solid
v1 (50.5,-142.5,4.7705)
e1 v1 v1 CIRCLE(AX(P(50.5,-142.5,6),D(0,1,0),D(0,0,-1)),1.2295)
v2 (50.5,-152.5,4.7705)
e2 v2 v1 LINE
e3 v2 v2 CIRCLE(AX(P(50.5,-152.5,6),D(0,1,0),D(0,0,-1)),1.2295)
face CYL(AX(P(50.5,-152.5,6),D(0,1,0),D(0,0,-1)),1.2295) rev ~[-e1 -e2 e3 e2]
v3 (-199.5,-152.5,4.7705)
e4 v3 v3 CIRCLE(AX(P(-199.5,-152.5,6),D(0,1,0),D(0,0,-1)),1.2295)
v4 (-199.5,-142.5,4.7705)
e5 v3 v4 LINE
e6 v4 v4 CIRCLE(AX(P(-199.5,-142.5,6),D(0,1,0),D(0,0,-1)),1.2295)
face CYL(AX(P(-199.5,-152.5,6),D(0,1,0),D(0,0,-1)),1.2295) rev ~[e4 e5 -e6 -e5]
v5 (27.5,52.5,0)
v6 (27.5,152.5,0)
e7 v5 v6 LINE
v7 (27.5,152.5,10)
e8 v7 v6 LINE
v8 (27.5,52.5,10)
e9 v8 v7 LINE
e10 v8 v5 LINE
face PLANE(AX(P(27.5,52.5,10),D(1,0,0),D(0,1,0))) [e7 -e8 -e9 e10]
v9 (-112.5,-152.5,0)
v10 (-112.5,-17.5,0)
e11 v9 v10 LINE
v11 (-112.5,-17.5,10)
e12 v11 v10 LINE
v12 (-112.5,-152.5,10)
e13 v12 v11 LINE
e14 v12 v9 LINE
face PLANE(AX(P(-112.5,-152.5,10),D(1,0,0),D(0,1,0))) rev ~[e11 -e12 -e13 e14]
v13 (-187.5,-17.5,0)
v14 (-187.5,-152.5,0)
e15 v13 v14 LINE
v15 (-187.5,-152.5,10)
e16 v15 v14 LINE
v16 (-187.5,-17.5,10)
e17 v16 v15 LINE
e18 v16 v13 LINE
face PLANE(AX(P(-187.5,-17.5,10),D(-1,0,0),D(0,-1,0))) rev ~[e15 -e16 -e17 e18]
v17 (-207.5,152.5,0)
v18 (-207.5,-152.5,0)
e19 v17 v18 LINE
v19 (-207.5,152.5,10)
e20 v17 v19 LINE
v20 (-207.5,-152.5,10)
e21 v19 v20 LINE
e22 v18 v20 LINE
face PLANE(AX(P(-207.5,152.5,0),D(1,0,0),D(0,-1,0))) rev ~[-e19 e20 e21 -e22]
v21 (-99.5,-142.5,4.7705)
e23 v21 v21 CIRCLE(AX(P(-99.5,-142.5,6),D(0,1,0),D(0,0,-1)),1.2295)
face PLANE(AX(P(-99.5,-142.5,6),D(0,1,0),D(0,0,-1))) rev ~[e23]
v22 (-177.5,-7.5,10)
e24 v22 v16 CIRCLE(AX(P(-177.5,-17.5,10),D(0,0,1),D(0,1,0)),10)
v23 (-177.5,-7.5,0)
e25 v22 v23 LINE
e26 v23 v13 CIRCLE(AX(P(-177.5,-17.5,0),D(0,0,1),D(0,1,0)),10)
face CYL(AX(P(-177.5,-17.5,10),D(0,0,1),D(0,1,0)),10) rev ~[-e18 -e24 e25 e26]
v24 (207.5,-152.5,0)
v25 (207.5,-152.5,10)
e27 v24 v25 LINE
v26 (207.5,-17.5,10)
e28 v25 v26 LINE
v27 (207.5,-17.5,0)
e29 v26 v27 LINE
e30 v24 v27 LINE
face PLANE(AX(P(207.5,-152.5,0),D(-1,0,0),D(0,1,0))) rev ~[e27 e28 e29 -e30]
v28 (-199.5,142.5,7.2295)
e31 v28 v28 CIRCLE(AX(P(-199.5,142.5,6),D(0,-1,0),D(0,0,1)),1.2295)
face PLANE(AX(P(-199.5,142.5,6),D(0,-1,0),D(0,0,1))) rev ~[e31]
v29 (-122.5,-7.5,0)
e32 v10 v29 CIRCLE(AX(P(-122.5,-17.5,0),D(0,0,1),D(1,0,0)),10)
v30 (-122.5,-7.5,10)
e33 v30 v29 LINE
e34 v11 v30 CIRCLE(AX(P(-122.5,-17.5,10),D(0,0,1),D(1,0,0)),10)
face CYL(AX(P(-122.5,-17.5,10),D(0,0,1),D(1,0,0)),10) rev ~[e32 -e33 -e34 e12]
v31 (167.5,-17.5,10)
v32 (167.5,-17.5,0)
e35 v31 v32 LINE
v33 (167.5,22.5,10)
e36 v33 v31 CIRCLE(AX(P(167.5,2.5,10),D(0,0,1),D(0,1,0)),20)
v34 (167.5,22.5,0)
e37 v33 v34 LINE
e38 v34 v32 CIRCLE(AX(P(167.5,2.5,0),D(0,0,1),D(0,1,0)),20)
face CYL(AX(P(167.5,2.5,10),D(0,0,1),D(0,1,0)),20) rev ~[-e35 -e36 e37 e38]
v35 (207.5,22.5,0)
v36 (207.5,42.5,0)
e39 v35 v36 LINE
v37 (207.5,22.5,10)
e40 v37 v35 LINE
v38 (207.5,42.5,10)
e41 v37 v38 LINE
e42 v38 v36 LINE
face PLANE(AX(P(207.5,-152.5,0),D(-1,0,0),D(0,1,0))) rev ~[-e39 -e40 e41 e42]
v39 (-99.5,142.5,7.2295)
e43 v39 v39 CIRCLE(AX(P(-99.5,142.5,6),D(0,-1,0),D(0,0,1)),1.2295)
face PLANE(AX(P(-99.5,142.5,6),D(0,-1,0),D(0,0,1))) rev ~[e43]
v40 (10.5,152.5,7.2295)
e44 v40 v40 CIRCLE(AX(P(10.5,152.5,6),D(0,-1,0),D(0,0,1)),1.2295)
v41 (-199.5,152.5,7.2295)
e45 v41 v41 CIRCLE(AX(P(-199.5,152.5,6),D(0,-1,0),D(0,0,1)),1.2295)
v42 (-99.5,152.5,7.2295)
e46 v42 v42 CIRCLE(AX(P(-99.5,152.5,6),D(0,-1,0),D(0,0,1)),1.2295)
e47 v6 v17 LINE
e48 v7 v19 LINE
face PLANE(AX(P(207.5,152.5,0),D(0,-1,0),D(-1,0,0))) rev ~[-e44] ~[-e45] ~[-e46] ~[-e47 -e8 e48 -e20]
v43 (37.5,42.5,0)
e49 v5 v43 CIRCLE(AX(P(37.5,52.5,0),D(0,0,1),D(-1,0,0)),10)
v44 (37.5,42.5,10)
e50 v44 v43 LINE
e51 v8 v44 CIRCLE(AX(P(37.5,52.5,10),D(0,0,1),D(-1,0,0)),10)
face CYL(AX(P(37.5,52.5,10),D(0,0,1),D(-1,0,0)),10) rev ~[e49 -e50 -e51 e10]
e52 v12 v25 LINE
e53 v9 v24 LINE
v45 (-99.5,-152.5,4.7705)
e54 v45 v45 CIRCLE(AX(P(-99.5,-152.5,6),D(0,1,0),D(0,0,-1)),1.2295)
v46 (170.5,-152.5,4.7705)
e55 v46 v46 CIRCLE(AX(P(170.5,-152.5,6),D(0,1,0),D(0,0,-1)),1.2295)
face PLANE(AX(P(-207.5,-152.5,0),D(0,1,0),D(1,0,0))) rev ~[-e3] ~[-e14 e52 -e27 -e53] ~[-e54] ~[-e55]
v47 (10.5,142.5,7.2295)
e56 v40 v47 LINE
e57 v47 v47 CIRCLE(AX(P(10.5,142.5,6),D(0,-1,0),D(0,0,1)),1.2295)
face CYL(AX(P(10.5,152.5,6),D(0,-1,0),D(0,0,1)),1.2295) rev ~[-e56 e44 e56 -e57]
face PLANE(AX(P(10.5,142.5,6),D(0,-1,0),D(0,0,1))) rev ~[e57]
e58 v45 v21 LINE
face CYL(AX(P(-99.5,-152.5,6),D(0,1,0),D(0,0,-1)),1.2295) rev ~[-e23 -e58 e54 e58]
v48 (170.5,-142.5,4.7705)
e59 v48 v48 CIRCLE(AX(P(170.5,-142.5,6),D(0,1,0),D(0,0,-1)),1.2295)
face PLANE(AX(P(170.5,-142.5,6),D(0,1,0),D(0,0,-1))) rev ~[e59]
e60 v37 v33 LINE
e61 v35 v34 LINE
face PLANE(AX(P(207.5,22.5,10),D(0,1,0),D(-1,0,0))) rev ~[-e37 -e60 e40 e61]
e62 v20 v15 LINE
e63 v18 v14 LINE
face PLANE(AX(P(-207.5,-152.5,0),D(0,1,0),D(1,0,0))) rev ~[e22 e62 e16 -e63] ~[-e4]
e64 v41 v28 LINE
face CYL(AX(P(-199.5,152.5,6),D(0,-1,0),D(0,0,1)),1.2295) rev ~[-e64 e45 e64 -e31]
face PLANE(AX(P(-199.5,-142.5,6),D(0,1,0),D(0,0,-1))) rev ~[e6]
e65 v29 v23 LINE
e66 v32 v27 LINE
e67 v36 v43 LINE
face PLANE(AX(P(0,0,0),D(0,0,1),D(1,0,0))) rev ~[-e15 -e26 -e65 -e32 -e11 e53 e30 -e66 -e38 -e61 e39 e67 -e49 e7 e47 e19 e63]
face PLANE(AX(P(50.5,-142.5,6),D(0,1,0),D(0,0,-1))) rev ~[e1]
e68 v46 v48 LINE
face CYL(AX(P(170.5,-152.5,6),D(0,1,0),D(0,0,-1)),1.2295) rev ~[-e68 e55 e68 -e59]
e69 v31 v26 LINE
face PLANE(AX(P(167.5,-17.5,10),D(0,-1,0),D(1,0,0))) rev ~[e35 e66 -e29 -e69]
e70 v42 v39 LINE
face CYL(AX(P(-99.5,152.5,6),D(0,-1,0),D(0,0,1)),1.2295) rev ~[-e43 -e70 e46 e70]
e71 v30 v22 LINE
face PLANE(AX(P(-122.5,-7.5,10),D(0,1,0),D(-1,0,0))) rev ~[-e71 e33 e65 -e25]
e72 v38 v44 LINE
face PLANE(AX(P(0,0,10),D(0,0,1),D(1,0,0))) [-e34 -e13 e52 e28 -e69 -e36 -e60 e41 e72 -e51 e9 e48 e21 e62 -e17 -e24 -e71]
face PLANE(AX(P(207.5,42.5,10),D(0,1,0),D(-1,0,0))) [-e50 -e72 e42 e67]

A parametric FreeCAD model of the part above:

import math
import FreeCAD as App
import Part
import Sketcher
Q = App.Units.Quantity


def add_polygon(sketch, points):
    """Adds a closed chain of lines whose ends are joined by coincident constraints."""
    first, n = sketch.GeometryCount, len(points)
    for a, b in zip(points, points[1:] + points[:1]):
        sketch.addGeometry(Part.LineSegment(App.Vector(*a, 0), App.Vector(*b, 0)), False)
    for i in range(n):
        sketch.addConstraint(Sketcher.Constraint("Coincident", first + i, 2, first + (i + 1) % n, 1))

doc = App.newDocument("Part")
body = doc.addObject("PartDesign::Body", "Body")

sketch1 = body.newObject("Sketcher::SketchObject", "Sketch")
sketch1.AttachmentSupport = (doc.getObject("XY_Plane"), [""])
sketch1.MapMode = "FlatFace"
add_polygon(sketch1, [(-208, 152), (-208, -152), (208, -152), (208, 152)])
sketch1.addConstraint(Sketcher.Constraint("Vertical", 0))
sketch1.addConstraint(Sketcher.Constraint("Horizontal", 1))
sketch1.addConstraint(Sketcher.Constraint("Vertical", 2))
sketch1.addConstraint(Sketcher.Constraint("Horizontal", 3))
sketch1.addConstraint(Sketcher.Constraint("Symmetric", 0, 2, 2, 2, -1, 1))
sketch1.addConstraint(Sketcher.Constraint("DistanceX", 1, 1, 1, 2, Q("415 mm")))
sketch1.addConstraint(Sketcher.Constraint("DistanceY", 0, 2, 0, 1, Q("305 mm")))
pad1 = body.newObject("PartDesign::Pad", "Pad")
pad1.Profile = sketch1
pad1.Length = 10

sketch2 = body.newObject("Sketcher::SketchObject", "Sketch001")
sketch2.AttachmentSupport = (doc.getObject("XY_Plane"), [""])
sketch2.MapMode = "FlatFace"
sketch2.AttachmentOffset = App.Placement(App.Vector(0, 0, 10), App.Rotation())
sketch2.addGeometry(Part.LineSegment(App.Vector(-188, -18, 0), App.Vector(-188, -152, 0)), False)
sketch2.addGeometry(Part.LineSegment(App.Vector(-188, -152, 0), App.Vector(-112, -152, 0)), False)
sketch2.addGeometry(Part.LineSegment(App.Vector(-112, -152, 0), App.Vector(-112, -18, 0)), False)
sketch2.addGeometry(Part.ArcOfCircle(Part.Circle(App.Vector(-122, -18, 0), App.Vector(0, 0, 1), 10), math.radians(0), math.radians(90)), False)
sketch2.addGeometry(Part.LineSegment(App.Vector(-122, -8, 0), App.Vector(-178, -8, 0)), False)
sketch2.addGeometry(Part.ArcOfCircle(Part.Circle(App.Vector(-178, -18, 0), App.Vector(0, 0, 1), 10), math.radians(90), math.radians(180)), False)
sketch2.addGeometry(Part.LineSegment(App.Vector(208, 152, 0), App.Vector(28, 152, 0)), False)
sketch2.addGeometry(Part.LineSegment(App.Vector(28, 152, 0), App.Vector(28, 52, 0)), False)
sketch2.addGeometry(Part.ArcOfCircle(Part.Circle(App.Vector(38, 52, 0), App.Vector(0, 0, 1), 10), math.radians(180), math.radians(270)), False)
sketch2.addGeometry(Part.LineSegment(App.Vector(38, 42, 0), App.Vector(208, 42, 0)), False)
sketch2.addGeometry(Part.LineSegment(App.Vector(208, 42, 0), App.Vector(208, 152, 0)), False)
sketch2.addGeometry(Part.LineSegment(App.Vector(168, -18, 0), App.Vector(208, -18, 0)), False)
sketch2.addGeometry(Part.LineSegment(App.Vector(208, -18, 0), App.Vector(208, 22, 0)), False)
sketch2.addGeometry(Part.LineSegment(App.Vector(208, 22, 0), App.Vector(168, 22, 0)), False)
sketch2.addGeometry(Part.ArcOfCircle(Part.Circle(App.Vector(168, 2, 0), App.Vector(0, 0, 1), 20), math.radians(90), math.radians(270)), False)
sketch2.addConstraint(Sketcher.Constraint("Coincident", 0, 2, 1, 1))
sketch2.addConstraint(Sketcher.Constraint("Coincident", 1, 2, 2, 1))
sketch2.addConstraint(Sketcher.Constraint("Tangent", 2, 2, 3, 1))
sketch2.addConstraint(Sketcher.Constraint("Tangent", 3, 2, 4, 1))
sketch2.addConstraint(Sketcher.Constraint("Tangent", 4, 2, 5, 1))
sketch2.addConstraint(Sketcher.Constraint("Tangent", 5, 2, 0, 1))
sketch2.addConstraint(Sketcher.Constraint("Coincident", 6, 2, 7, 1))
sketch2.addConstraint(Sketcher.Constraint("Tangent", 7, 2, 8, 1))
sketch2.addConstraint(Sketcher.Constraint("Tangent", 8, 2, 9, 1))
sketch2.addConstraint(Sketcher.Constraint("Coincident", 9, 2, 10, 1))
sketch2.addConstraint(Sketcher.Constraint("Coincident", 10, 2, 6, 1))
sketch2.addConstraint(Sketcher.Constraint("Coincident", 11, 2, 12, 1))
sketch2.addConstraint(Sketcher.Constraint("Coincident", 12, 2, 13, 1))
sketch2.addConstraint(Sketcher.Constraint("Tangent", 13, 2, 14, 1))
sketch2.addConstraint(Sketcher.Constraint("Tangent", 14, 2, 11, 1))
sketch2.addConstraint(Sketcher.Constraint("Vertical", 0))
sketch2.addConstraint(Sketcher.Constraint("Horizontal", 1))
sketch2.addConstraint(Sketcher.Constraint("Vertical", 2))
sketch2.addConstraint(Sketcher.Constraint("Horizontal", 4))
sketch2.addConstraint(Sketcher.Constraint("Horizontal", 6))
sketch2.addConstraint(Sketcher.Constraint("Vertical", 7))
sketch2.addConstraint(Sketcher.Constraint("Horizontal", 9))
sketch2.addConstraint(Sketcher.Constraint("Vertical", 10))
sketch2.addConstraint(Sketcher.Constraint("Horizontal", 11))
sketch2.addConstraint(Sketcher.Constraint("Vertical", 12))
sketch2.addConstraint(Sketcher.Constraint("Horizontal", 13))
sketch2.addConstraint(Sketcher.Constraint("Equal", 3, 5))
sketch2.addConstraint(Sketcher.Constraint("Equal", 5, 8))
sketch2.addConstraint(Sketcher.Constraint("Horizontal", 5, 2, 11, 2))
sketch2.addConstraint(Sketcher.Constraint("Vertical", 10, 2, 11, 2))
sketch2.addConstraint(Sketcher.Constraint("Equal", 13, 12))
sketch2.addConstraint(Sketcher.Constraint("Radius", 3, Q("10 mm")))
sketch2.addConstraint(Sketcher.Constraint("Radius", 14, Q("20 mm")))
sketch2.addConstraint(Sketcher.Constraint("DistanceX", 1, 1, 1, 2, Q("75 mm")))
sketch2.addConstraint(Sketcher.Constraint("DistanceX", 6, 2, 6, 1, Q("180 mm")))
sketch2.addConstraint(Sketcher.Constraint("DistanceY", 10, 1, 10, 2, Q("110 mm")))
sketch2.addConstraint(Sketcher.Constraint("DistanceY", 1, 2, 3, 2, Q("145 mm")))
sketch2.addConstraint(Sketcher.Constraint("DistanceY", 14, 3, 8, 2, Q("40 mm")))
sketch2.addConstraint(Sketcher.Constraint("DistanceX", 3, 3, 8, 3, Q("160 mm")))
sketch2.addConstraint(Sketcher.Constraint("DistanceX", 3, 3, -1, 1, Q("122.5 mm")))
sketch2.addConstraint(Sketcher.Constraint("DistanceY", 3, 3, -1, 1, Q("17.5 mm")))
pocket1 = body.newObject("PartDesign::Pocket", "Pocket")
pocket1.Profile = sketch2
pocket1.Length = 10

sketch3 = body.newObject("Sketcher::SketchObject", "Sketch002")
sketch3.AttachmentSupport = (doc.getObject("XZ_Plane"), [""])
sketch3.MapMode = "FlatFace"
sketch3.AttachmentOffset = App.Placement(App.Vector(0, 0, 152.5), App.Rotation())
sketch3.addGeometry(Part.Circle(App.Vector(-199.5, 6, 0), App.Vector(0, 0, 1), 1.2), False)
sketch3.addGeometry(Part.Circle(App.Vector(-99.5, 6, 0), App.Vector(0, 0, 1), 1.2), False)
sketch3.addGeometry(Part.Circle(App.Vector(50.5, 6, 0), App.Vector(0, 0, 1), 1.2), False)
sketch3.addGeometry(Part.Circle(App.Vector(170.5, 6, 0), App.Vector(0, 0, 1), 1.2), False)
sketch3.addConstraint(Sketcher.Constraint("Equal", 0, 1))
sketch3.addConstraint(Sketcher.Constraint("Equal", 1, 2))
sketch3.addConstraint(Sketcher.Constraint("Equal", 2, 3))
sketch3.addConstraint(Sketcher.Constraint("Horizontal", 0, 3, 1, 3))
sketch3.addConstraint(Sketcher.Constraint("Horizontal", 1, 3, 2, 3))
sketch3.addConstraint(Sketcher.Constraint("Horizontal", 2, 3, 3, 3))
sketch3.addConstraint(Sketcher.Constraint("Diameter", 0, Q("2.459 mm")))
sketch3.addConstraint(Sketcher.Constraint("DistanceY", -1, 1, 0, 3, Q("6 mm")))
sketch3.addConstraint(Sketcher.Constraint("DistanceX", 0, 3, 1, 3, Q("100 mm")))
sketch3.addConstraint(Sketcher.Constraint("DistanceX", 1, 3, 2, 3, Q("150 mm")))
sketch3.addConstraint(Sketcher.Constraint("DistanceX", 2, 3, 3, 3, Q("120 mm")))
sketch3.addConstraint(Sketcher.Constraint("DistanceX", 0, 3, -1, 1, Q("199.5 mm")))
doc.recompute()
hole = body.newObject("PartDesign::Hole", "Hole")
hole.Profile = sketch3
hole.ThreadType = "None"
hole.Diameter = 2.459
hole.DepthType = "Dimension"
hole.Depth = 10
hole.DrillPoint = "Flat"

sketch4 = body.newObject("Sketcher::SketchObject", "Sketch003")
sketch4.AttachmentSupport = (doc.getObject("XZ_Plane"), [""])
sketch4.MapMode = "FlatFace"
sketch4.AttachmentOffset = App.Placement(App.Vector(0, 0, -152.5), App.Rotation())
sketch4.addGeometry(Part.Circle(App.Vector(10.5, 6, 0), App.Vector(0, 0, 1), 1.2), False)
sketch4.addGeometry(Part.Circle(App.Vector(-99.5, 6, 0), App.Vector(0, 0, 1), 1.2), False)
sketch4.addGeometry(Part.Circle(App.Vector(-199.5, 6, 0), App.Vector(0, 0, 1), 1.2), False)
sketch4.addConstraint(Sketcher.Constraint("Equal", 0, 1))
sketch4.addConstraint(Sketcher.Constraint("Equal", 1, 2))
sketch4.addConstraint(Sketcher.Constraint("Horizontal", 0, 3, 1, 3))
sketch4.addConstraint(Sketcher.Constraint("Horizontal", 1, 3, 2, 3))
sketch4.addConstraint(Sketcher.Constraint("Diameter", 0, Q("2.459 mm")))
sketch4.addConstraint(Sketcher.Constraint("DistanceY", -1, 1, 0, 3, Q("6 mm")))
sketch4.addConstraint(Sketcher.Constraint("DistanceX", 1, 3, 0, 3, Q("110 mm")))
sketch4.addConstraint(Sketcher.Constraint("DistanceX", 2, 3, 1, 3, Q("100 mm")))
sketch4.addConstraint(Sketcher.Constraint("DistanceX", -1, 1, 0, 3, Q("10.5 mm")))
doc.recompute()
hole2 = body.newObject("PartDesign::Hole", "Hole001")
hole2.Profile = sketch4
hole2.ThreadType = "None"
hole2.Diameter = 2.459
hole2.DepthType = "Dimension"
hole2.Depth = 10
hole2.DrillPoint = "Flat"
hole2.Reversed = True

doc.recompute()
